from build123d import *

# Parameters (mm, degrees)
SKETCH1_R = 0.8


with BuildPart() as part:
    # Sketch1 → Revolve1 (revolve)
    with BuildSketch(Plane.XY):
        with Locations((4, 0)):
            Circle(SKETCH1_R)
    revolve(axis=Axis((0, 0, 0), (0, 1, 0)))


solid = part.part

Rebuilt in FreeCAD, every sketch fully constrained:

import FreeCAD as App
import Part
import Sketcher
from FreeCAD import Vector
Q = App.Units.Quantity

doc = App.newDocument("Part")
params = doc.addObject("Spreadsheet::Sheet", "Params")
for row, (alias, value) in enumerate([
    ("sketch1_diameter", "1.6 mm"),
    ("revolution_angle", "360 deg"),
], start=1):
    params.set(f"A{row}", alias)
    params.set(f"B{row}", "=" + value)
    params.setAlias(f"B{row}", alias)

body = doc.addObject("PartDesign::Body", "Body")

sketch1 = doc.addObject("Sketcher::SketchObject", "Sketch")
body.addObject(sketch1)
sketch1.AttachmentSupport = (doc.XY_Plane, [""])
sketch1.MapMode = "FlatFace"
sketch1.addGeometry(Part.Circle(Vector(4, 0, 0), Vector(0, 0, 1), 0.8), False)
sketch1.addConstraint([
    Sketcher.Constraint("PointOnObject", 0, 3, -1),
    Sketcher.Constraint("Diameter", 0, Q("1.6 mm")),
    Sketcher.Constraint("DistanceX", -1, 1, 0, 3, Q("4 mm")),
])
sketch1.setExpression("Constraints[1]", "Params.sketch1_diameter")
revolution = doc.addObject("PartDesign::Revolution", "Revolution")
body.addObject(revolution)
revolution.Profile = sketch1
revolution.ReferenceAxis = (sketch1, ["V_Axis"])
revolution.setExpression("Angle", "Params.revolution_angle")

doc.recompute()
